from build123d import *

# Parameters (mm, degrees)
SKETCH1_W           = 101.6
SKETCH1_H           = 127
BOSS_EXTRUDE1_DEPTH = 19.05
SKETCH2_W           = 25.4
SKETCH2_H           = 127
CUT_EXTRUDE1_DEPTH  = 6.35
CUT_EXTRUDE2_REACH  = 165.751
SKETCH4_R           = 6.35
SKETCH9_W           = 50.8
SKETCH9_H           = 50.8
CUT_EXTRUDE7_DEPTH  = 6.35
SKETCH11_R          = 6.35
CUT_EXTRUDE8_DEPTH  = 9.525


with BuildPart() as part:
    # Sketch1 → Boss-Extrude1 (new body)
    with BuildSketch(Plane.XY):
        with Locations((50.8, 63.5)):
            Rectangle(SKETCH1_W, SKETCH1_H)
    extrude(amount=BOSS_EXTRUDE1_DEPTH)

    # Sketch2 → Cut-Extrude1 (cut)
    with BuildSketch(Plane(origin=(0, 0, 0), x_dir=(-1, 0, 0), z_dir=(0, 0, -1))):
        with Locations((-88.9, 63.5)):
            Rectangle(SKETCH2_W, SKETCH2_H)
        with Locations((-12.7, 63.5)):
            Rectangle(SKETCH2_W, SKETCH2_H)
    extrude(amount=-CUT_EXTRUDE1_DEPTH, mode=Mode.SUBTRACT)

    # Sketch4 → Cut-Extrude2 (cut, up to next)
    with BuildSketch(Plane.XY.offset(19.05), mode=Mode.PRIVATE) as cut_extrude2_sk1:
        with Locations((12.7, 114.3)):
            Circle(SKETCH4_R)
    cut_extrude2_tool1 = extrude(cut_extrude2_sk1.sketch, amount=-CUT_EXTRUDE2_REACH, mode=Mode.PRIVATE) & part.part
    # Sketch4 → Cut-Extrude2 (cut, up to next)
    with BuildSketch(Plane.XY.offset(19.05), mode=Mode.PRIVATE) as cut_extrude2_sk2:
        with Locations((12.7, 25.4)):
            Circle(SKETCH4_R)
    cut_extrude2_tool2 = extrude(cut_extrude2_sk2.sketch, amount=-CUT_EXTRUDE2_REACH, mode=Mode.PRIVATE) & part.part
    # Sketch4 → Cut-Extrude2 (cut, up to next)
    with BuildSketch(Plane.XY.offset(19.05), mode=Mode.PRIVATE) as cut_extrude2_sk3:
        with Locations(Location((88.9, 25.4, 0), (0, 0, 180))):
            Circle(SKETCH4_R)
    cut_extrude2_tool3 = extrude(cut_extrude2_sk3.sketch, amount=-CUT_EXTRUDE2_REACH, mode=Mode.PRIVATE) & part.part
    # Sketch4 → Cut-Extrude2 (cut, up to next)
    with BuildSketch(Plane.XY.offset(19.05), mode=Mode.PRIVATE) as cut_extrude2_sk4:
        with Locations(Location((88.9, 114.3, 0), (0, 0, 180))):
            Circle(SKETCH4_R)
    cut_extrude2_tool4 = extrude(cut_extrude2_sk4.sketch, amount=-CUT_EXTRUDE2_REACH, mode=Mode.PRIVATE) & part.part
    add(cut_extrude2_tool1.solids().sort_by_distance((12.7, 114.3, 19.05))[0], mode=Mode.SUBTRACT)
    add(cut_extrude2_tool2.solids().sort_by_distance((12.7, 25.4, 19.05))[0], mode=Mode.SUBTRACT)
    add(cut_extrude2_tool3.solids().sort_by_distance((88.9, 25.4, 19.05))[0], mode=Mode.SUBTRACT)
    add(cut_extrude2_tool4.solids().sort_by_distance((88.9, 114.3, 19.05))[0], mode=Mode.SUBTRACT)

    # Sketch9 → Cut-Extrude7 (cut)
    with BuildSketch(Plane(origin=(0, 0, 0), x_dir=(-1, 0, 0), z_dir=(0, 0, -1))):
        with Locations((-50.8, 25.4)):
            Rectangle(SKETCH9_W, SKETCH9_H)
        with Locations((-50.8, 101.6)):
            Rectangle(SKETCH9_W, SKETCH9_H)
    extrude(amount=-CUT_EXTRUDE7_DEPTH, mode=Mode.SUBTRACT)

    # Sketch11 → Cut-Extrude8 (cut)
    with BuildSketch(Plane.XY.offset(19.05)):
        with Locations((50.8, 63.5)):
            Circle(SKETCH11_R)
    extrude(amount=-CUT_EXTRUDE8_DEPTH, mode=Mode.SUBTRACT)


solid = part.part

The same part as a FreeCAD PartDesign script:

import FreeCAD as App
import Part
import Sketcher

V = App.Vector
Q = App.Units.Quantity

doc = App.newDocument("Part")
params = doc.addObject("Spreadsheet::Sheet", "Params")
for row, (alias, value) in enumerate([
    ("sketch1_width", "4 in"),
    ("sketch1_height", "5 in"),
    ("pad1_length", "0.75 in"),
    ("sketch2_width", "1 in"),
    ("sketch2_height", "5 in"),
    ("pocket1_length", "0.25 in"),
    ("sketch3_diameter", "0.5 in"),
    ("sketch4_diameter", "0.5 in"),
    ("sketch5_diameter", "0.5 in"),
    ("sketch6_diameter", "0.5 in"),
    ("sketch7_width", "2 in"),
    ("pocket6_length", "0.25 in"),
    ("sketch8_diameter", "0.5 in"),
    ("pocket7_length", "0.375 in"),
], start=1):
    params.set(f"A{row}", alias)
    params.set(f"B{row}", "=" + value)
    params.setAlias(f"B{row}", alias)

body = doc.addObject("PartDesign::Body", "Body")

# Sketch on XY plane
sketch1 = body.newObject("Sketcher::SketchObject", "Sketch")
sketch1.AttachmentSupport = (doc.getObject("XY_Plane"), [""])
sketch1.MapMode = "FlatFace"
sketch1.addGeometry(Part.LineSegment(V(0, 127, 0), V(0, 0, 0)), False)
sketch1.addGeometry(Part.LineSegment(V(0, 0, 0), V(102, 0, 0)), False)
sketch1.addGeometry(Part.LineSegment(V(102, 0, 0), V(102, 127, 0)), False)
sketch1.addGeometry(Part.LineSegment(V(102, 127, 0), V(0, 127, 0)), False)
sketch1.addConstraint(Sketcher.Constraint("Coincident", 0, 2, 1, 1))
sketch1.addConstraint(Sketcher.Constraint("Coincident", 1, 2, 2, 1))
sketch1.addConstraint(Sketcher.Constraint("Coincident", 2, 2, 3, 1))
sketch1.addConstraint(Sketcher.Constraint("Coincident", 3, 2, 0, 1))
sketch1.addConstraint(Sketcher.Constraint("Vertical", 0))
sketch1.addConstraint(Sketcher.Constraint("Horizontal", 1))
sketch1.addConstraint(Sketcher.Constraint("Vertical", 2))
sketch1.addConstraint(Sketcher.Constraint("Horizontal", 3))
sketch1.addConstraint(Sketcher.Constraint("Coincident", 0, 2, -1, 1))
sketch1.addConstraint(Sketcher.Constraint("DistanceX", 1, 1, 1, 2, Q("4 in")))
sketch1.addConstraint(Sketcher.Constraint("DistanceY", 0, 2, 0, 1, Q("5 in")))
sketch1.setExpression("Constraints[9]", "Params.sketch1_width")
sketch1.setExpression("Constraints[10]", "Params.sketch1_height")
pad1 = body.newObject("PartDesign::Pad", "Pad")
pad1.Profile = sketch1
pad1.setExpression("Length", "Params.pad1_length")

# Sketch on XY plane
sketch2 = body.newObject("Sketcher::SketchObject", "Sketch001")
sketch2.AttachmentSupport = (doc.getObject("XY_Plane"), [""])
sketch2.MapMode = "FlatFace"
sketch2.addGeometry(Part.LineSegment(V(102, 127, 0), V(102, 0, 0)), False)
sketch2.addGeometry(Part.LineSegment(V(102, 0, 0), V(76, 0, 0)), False)
sketch2.addGeometry(Part.LineSegment(V(76, 0, 0), V(76, 127, 0)), False)
sketch2.addGeometry(Part.LineSegment(V(76, 127, 0), V(102, 127, 0)), False)
sketch2.addGeometry(Part.LineSegment(V(25, 127, 0), V(25, 0, 0)), False)
sketch2.addGeometry(Part.LineSegment(V(25, 0, 0), V(0, 0, 0)), False)
sketch2.addGeometry(Part.LineSegment(V(0, 0, 0), V(0, 127, 0)), False)
sketch2.addGeometry(Part.LineSegment(V(0, 127, 0), V(25, 127, 0)), False)
sketch2.addConstraint(Sketcher.Constraint("Coincident", 0, 2, 1, 1))
sketch2.addConstraint(Sketcher.Constraint("Coincident", 1, 2, 2, 1))
sketch2.addConstraint(Sketcher.Constraint("Coincident", 2, 2, 3, 1))
sketch2.addConstraint(Sketcher.Constraint("Coincident", 3, 2, 0, 1))
sketch2.addConstraint(Sketcher.Constraint("Coincident", 4, 2, 5, 1))
sketch2.addConstraint(Sketcher.Constraint("Coincident", 5, 2, 6, 1))
sketch2.addConstraint(Sketcher.Constraint("Coincident", 6, 2, 7, 1))
sketch2.addConstraint(Sketcher.Constraint("Coincident", 7, 2, 4, 1))
sketch2.addConstraint(Sketcher.Constraint("Vertical", 0))
sketch2.addConstraint(Sketcher.Constraint("Horizontal", 1))
sketch2.addConstraint(Sketcher.Constraint("Vertical", 2))
sketch2.addConstraint(Sketcher.Constraint("Horizontal", 3))
sketch2.addConstraint(Sketcher.Constraint("Vertical", 4))
sketch2.addConstraint(Sketcher.Constraint("Horizontal", 5))
sketch2.addConstraint(Sketcher.Constraint("Vertical", 6))
sketch2.addConstraint(Sketcher.Constraint("Horizontal", 7))
sketch2.addConstraint(Sketcher.Constraint("Coincident", 5, 2, -1, 1))
sketch2.addConstraint(Sketcher.Constraint("PointOnObject", 0, 2, -1))
sketch2.addConstraint(Sketcher.Constraint("Horizontal", 3, 2, 6, 2))
sketch2.addConstraint(Sketcher.Constraint("Equal", 3, 5))
sketch2.addConstraint(Sketcher.Constraint("DistanceX", 1, 2, 1, 1, Q("1 in")))
sketch2.addConstraint(Sketcher.Constraint("DistanceY", 0, 2, 0, 1, Q("5 in")))
sketch2.addConstraint(Sketcher.Constraint("DistanceX", -1, 1, 0, 2, Q("4 in")))
sketch2.setExpression("Constraints[20]", "Params.sketch2_width")
sketch2.setExpression("Constraints[21]", "Params.sketch2_height")
pocket1 = body.newObject("PartDesign::Pocket", "Pocket")
pocket1.Profile = sketch2
pocket1.setExpression("Length", "Params.pocket1_length")
pocket1.Reversed = True

# Sketch on XY plane
sketch3 = body.newObject("Sketcher::SketchObject", "Sketch002")
sketch3.AttachmentSupport = (doc.getObject("XY_Plane"), [""])
sketch3.MapMode = "FlatFace"
sketch3.AttachmentOffset = App.Placement(V(0, 0, 0.75 * 25.4), App.Rotation())
sketch3.addGeometry(Part.Circle(V(13, 114, 0), V(0, 0, 1), 6), False)
sketch3.addConstraint(Sketcher.Constraint("Diameter", 0, Q("0.5 in")))
sketch3.addConstraint(Sketcher.Constraint("DistanceX", -1, 1, 0, 3, Q("0.5 in")))
sketch3.addConstraint(Sketcher.Constraint("DistanceY", -1, 1, 0, 3, Q("4.5 in")))
sketch3.setExpression("Constraints[0]", "Params.sketch3_diameter")
pocket2 = body.newObject("PartDesign::Pocket", "Pocket001")
pocket2.Profile = sketch3
pocket2.Type = "UpToFirst"

# Sketch on XY plane
sketch4 = body.newObject("Sketcher::SketchObject", "Sketch003")
sketch4.AttachmentSupport = (doc.getObject("XY_Plane"), [""])
sketch4.MapMode = "FlatFace"
sketch4.AttachmentOffset = App.Placement(V(0, 0, 0.75 * 25.4), App.Rotation())
sketch4.addGeometry(Part.Circle(V(13, 25, 0), V(0, 0, 1), 6), False)
sketch4.addConstraint(Sketcher.Constraint("Diameter", 0, Q("0.5 in")))
sketch4.addConstraint(Sketcher.Constraint("DistanceY", -1, 1, 0, 3, Q("1 in")))
sketch4.addConstraint(Sketcher.Constraint("DistanceX", -1, 1, 0, 3, Q("0.5 in")))
sketch4.setExpression("Constraints[0]", "Params.sketch4_diameter")
pocket3 = body.newObject("PartDesign::Pocket", "Pocket002")
pocket3.Profile = sketch4
pocket3.Type = "UpToFirst"

# Sketch on XY plane
sketch5 = body.newObject("Sketcher::SketchObject", "Sketch004")
sketch5.AttachmentSupport = (doc.getObject("XY_Plane"), [""])
sketch5.MapMode = "FlatFace"
sketch5.AttachmentOffset = App.Placement(V(0, 0, 0.75 * 25.4), App.Rotation())
sketch5.addGeometry(Part.Circle(V(89, 25, 0), V(0, 0, 1), 6), False)
sketch5.addConstraint(Sketcher.Constraint("Diameter", 0, Q("0.5 in")))
sketch5.addConstraint(Sketcher.Constraint("DistanceY", -1, 1, 0, 3, Q("1 in")))
sketch5.addConstraint(Sketcher.Constraint("DistanceX", -1, 1, 0, 3, Q("3.5 in")))
sketch5.setExpression("Constraints[0]", "Params.sketch5_diameter")
pocket4 = body.newObject("PartDesign::Pocket", "Pocket003")
pocket4.Profile = sketch5
pocket4.Type = "UpToFirst"

# Sketch on XY plane
sketch6 = body.newObject("Sketcher::SketchObject", "Sketch005")
sketch6.AttachmentSupport = (doc.getObject("XY_Plane"), [""])
sketch6.MapMode = "FlatFace"
sketch6.AttachmentOffset = App.Placement(V(0, 0, 0.75 * 25.4), App.Rotation())
sketch6.addGeometry(Part.Circle(V(89, 114, 0), V(0, 0, 1), 6), False)
sketch6.addConstraint(Sketcher.Constraint("Diameter", 0, Q("0.5 in")))
sketch6.addConstraint(Sketcher.Constraint("DistanceX", -1, 1, 0, 3, Q("3.5 in")))
sketch6.addConstraint(Sketcher.Constraint("DistanceY", -1, 1, 0, 3, Q("4.5 in")))
sketch6.setExpression("Constraints[0]", "Params.sketch6_diameter")
pocket5 = body.newObject("PartDesign::Pocket", "Pocket004")
pocket5.Profile = sketch6
pocket5.Type = "UpToFirst"

# Sketch on XY plane
sketch7 = body.newObject("Sketcher::SketchObject", "Sketch006")
sketch7.AttachmentSupport = (doc.getObject("XY_Plane"), [""])
sketch7.MapMode = "FlatFace"
sketch7.addGeometry(Part.LineSegment(V(76, 51, 0), V(76, 0, 0)), False)
sketch7.addGeometry(Part.LineSegment(V(76, 0, 0), V(25, 0, 0)), False)
sketch7.addGeometry(Part.LineSegment(V(25, 0, 0), V(25, 51, 0)), False)
sketch7.addGeometry(Part.LineSegment(V(25, 51, 0), V(76, 51, 0)), False)
sketch7.addGeometry(Part.LineSegment(V(76, 127, 0), V(76, 76, 0)), False)
sketch7.addGeometry(Part.LineSegment(V(76, 76, 0), V(25, 76, 0)), False)
sketch7.addGeometry(Part.LineSegment(V(25, 76, 0), V(25, 127, 0)), False)
sketch7.addGeometry(Part.LineSegment(V(25, 127, 0), V(76, 127, 0)), False)
sketch7.addConstraint(Sketcher.Constraint("Coincident", 0, 2, 1, 1))
sketch7.addConstraint(Sketcher.Constraint("Coincident", 1, 2, 2, 1))
sketch7.addConstraint(Sketcher.Constraint("Coincident", 2, 2, 3, 1))
sketch7.addConstraint(Sketcher.Constraint("Coincident", 3, 2, 0, 1))
sketch7.addConstraint(Sketcher.Constraint("Coincident", 4, 2, 5, 1))
sketch7.addConstraint(Sketcher.Constraint("Coincident", 5, 2, 6, 1))
sketch7.addConstraint(Sketcher.Constraint("Coincident", 6, 2, 7, 1))
sketch7.addConstraint(Sketcher.Constraint("Coincident", 7, 2, 4, 1))
sketch7.addConstraint(Sketcher.Constraint("Vertical", 0))
sketch7.addConstraint(Sketcher.Constraint("Horizontal", 1))
sketch7.addConstraint(Sketcher.Constraint("Vertical", 2))
sketch7.addConstraint(Sketcher.Constraint("Horizontal", 3))
sketch7.addConstraint(Sketcher.Constraint("Vertical", 4))
sketch7.addConstraint(Sketcher.Constraint("Horizontal", 5))
sketch7.addConstraint(Sketcher.Constraint("Vertical", 6))
sketch7.addConstraint(Sketcher.Constraint("Horizontal", 7))
sketch7.addConstraint(Sketcher.Constraint("PointOnObject", 0, 2, -1))
sketch7.addConstraint(Sketcher.Constraint("Vertical", 3, 2, 4, 2))
sketch7.addConstraint(Sketcher.Constraint("Vertical", 2, 2, 5, 2))
sketch7.addConstraint(Sketcher.Constraint("Equal", 7, 0))
sketch7.addConstraint(Sketcher.Constraint("Equal", 2, 4))
sketch7.addConstraint(Sketcher.Constraint("DistanceX", 1, 2, 1, 1, Q("2 in")))
sketch7.addConstraint(Sketcher.Constraint("DistanceX", -1, 1, 0, 2, Q("3 in")))
sketch7.addConstraint(Sketcher.Constraint("DistanceY", -1, 1, 4, 2, Q("3 in")))
sketch7.setExpression("Constraints[21]", "Params.sketch7_width")
pocket6 = body.newObject("PartDesign::Pocket", "Pocket005")
pocket6.Profile = sketch7
pocket6.setExpression("Length", "Params.pocket6_length")
pocket6.Reversed = True

# Sketch on XY plane
sketch8 = body.newObject("Sketcher::SketchObject", "Sketch007")
sketch8.AttachmentSupport = (doc.getObject("XY_Plane"), [""])
sketch8.MapMode = "FlatFace"
sketch8.AttachmentOffset = App.Placement(V(0, 0, 0.75 * 25.4), App.Rotation())
sketch8.addGeometry(Part.Circle(V(51, 64, 0), V(0, 0, 1), 6), False)
sketch8.addConstraint(Sketcher.Constraint("Diameter", 0, Q("0.5 in")))
sketch8.addConstraint(Sketcher.Constraint("DistanceX", -1, 1, 0, 3, Q("2 in")))
sketch8.addConstraint(Sketcher.Constraint("DistanceY", -1, 1, 0, 3, Q("2.5 in")))
sketch8.setExpression("Constraints[0]", "Params.sketch8_diameter")
pocket7 = body.newObject("PartDesign::Pocket", "Pocket006")
pocket7.Profile = sketch8
pocket7.setExpression("Length", "Params.pocket7_length")

doc.recompute()
